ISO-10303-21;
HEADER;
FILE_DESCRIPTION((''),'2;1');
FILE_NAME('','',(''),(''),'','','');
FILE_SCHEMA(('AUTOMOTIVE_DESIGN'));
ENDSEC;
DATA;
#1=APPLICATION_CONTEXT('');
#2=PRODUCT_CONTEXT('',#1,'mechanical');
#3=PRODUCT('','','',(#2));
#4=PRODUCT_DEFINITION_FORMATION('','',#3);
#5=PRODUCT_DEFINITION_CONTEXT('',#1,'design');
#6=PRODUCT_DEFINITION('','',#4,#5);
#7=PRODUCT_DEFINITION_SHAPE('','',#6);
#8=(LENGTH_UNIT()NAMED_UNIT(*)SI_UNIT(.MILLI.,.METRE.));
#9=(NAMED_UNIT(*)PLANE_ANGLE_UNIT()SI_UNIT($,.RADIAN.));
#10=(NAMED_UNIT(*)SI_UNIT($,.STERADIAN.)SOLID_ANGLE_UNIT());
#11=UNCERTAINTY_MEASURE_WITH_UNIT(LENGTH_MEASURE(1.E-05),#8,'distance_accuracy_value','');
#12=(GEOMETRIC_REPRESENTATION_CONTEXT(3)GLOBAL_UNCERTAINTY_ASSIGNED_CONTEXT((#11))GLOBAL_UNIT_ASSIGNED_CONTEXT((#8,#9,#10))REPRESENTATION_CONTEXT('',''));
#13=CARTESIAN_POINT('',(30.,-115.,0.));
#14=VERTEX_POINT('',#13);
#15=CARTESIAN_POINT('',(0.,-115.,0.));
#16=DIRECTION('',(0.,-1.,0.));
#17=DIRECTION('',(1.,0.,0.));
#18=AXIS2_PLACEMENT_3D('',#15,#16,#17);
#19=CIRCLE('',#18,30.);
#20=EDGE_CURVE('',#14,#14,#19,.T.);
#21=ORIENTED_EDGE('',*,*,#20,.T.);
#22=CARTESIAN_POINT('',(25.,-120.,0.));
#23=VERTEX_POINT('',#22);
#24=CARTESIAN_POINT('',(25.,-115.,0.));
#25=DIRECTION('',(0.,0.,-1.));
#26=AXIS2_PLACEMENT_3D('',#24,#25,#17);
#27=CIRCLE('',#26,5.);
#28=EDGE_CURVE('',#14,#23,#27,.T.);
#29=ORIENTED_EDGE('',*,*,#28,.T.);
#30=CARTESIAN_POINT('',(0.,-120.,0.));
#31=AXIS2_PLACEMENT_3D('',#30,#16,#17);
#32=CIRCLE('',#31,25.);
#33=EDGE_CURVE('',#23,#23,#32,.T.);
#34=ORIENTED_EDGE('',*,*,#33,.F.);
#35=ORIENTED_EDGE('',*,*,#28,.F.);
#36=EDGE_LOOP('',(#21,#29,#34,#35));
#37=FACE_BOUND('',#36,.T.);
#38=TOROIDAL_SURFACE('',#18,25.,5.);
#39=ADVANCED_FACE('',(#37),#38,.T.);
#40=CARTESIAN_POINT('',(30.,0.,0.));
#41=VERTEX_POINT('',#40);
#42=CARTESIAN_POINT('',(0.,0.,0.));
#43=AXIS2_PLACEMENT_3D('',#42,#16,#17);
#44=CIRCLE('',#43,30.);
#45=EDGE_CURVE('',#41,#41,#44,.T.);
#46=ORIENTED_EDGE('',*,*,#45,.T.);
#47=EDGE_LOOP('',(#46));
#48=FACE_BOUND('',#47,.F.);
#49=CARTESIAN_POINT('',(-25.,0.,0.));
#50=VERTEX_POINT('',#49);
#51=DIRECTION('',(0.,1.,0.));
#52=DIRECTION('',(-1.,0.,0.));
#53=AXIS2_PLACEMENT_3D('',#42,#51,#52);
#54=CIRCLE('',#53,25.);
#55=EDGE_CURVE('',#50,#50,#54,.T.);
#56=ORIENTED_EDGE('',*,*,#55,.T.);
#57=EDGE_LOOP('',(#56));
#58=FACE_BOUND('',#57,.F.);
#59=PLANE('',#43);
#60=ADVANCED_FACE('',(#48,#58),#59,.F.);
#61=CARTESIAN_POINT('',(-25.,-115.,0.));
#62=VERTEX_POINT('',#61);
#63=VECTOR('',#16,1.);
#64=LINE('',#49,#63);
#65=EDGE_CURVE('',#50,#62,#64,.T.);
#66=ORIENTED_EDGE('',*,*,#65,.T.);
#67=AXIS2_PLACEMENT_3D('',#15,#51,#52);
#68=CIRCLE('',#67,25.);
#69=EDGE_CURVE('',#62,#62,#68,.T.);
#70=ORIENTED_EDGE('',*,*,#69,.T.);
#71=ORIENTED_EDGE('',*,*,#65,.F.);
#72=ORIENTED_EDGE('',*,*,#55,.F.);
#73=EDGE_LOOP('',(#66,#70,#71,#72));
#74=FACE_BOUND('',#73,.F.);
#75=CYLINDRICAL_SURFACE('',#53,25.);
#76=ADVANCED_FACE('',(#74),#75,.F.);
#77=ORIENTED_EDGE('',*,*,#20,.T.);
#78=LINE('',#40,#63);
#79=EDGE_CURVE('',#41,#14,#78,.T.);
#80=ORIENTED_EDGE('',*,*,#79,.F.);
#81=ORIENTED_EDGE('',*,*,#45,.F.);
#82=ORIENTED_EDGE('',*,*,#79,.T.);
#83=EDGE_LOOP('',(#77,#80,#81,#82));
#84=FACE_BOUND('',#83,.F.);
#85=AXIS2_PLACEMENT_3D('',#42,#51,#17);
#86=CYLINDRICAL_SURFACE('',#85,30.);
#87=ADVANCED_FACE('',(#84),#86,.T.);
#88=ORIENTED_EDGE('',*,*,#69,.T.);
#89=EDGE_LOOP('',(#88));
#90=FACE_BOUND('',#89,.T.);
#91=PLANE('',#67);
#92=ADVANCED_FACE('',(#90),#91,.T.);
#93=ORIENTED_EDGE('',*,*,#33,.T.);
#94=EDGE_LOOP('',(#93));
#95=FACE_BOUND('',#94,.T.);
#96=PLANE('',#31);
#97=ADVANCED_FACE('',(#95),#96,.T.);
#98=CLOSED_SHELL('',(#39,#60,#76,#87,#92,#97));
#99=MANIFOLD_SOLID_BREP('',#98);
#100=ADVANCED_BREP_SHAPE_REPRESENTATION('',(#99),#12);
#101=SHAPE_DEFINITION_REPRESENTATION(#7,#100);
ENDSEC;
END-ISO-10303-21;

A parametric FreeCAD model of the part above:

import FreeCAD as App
import Part
import Sketcher
from FreeCAD import Vector
Q = App.Units.Quantity


def edges_at(feature, points):
    """Names of the edges that pass closest to the given points."""
    edges = feature.Shape.Edges
    near = lambda p: min(range(len(edges)), key=lambda i: edges[i].distToShape(Part.Vertex(*p))[0])
    return sorted({f"Edge{near(p) + 1}" for p in points})

doc = App.newDocument("Part")
body = doc.addObject("PartDesign::Body", "Body")

# Sketch on XZ plane
sketch1 = doc.addObject("Sketcher::SketchObject", "Sketch")
body.addObject(sketch1)
sketch1.AttachmentSupport = (doc.XZ_Plane, [""])
sketch1.MapMode = "FlatFace"
sketch1.addGeometry(Part.Circle(Vector(0, 0, 0), Vector(0, 0, 1), 30), False)
sketch1.addConstraint([
    Sketcher.Constraint("Coincident", 0, 3, -1, 1),
    Sketcher.Constraint("Diameter", 0, Q("60 mm")),
])
pad1 = doc.addObject("PartDesign::Pad", "Pad")
body.addObject(pad1)
pad1.Profile = sketch1
pad1.Length = 120

# Sketch on XZ plane
sketch2 = doc.addObject("Sketcher::SketchObject", "Sketch001")
body.addObject(sketch2)
sketch2.AttachmentSupport = (doc.XZ_Plane, [""])
sketch2.MapMode = "FlatFace"
sketch2.addGeometry(Part.Circle(Vector(0, 0, 0), Vector(0, 0, 1), 25), False)
sketch2.addConstraint([
    Sketcher.Constraint("Coincident", 0, 3, -1, 1),
    Sketcher.Constraint("Diameter", 0, Q("50 mm")),
])
pocket1 = doc.addObject("PartDesign::Pocket", "Pocket")
body.addObject(pocket1)
pocket1.Profile = sketch2
pocket1.Length = 115
pocket1.Reversed = True
doc.recompute()

fillet = doc.addObject("PartDesign::Fillet", "Fillet")
body.addObject(fillet)
fillet.Base = (pocket1, edges_at(pocket1, [(-30, -120, 0)]))
fillet.Radius = 5

doc.recompute()
